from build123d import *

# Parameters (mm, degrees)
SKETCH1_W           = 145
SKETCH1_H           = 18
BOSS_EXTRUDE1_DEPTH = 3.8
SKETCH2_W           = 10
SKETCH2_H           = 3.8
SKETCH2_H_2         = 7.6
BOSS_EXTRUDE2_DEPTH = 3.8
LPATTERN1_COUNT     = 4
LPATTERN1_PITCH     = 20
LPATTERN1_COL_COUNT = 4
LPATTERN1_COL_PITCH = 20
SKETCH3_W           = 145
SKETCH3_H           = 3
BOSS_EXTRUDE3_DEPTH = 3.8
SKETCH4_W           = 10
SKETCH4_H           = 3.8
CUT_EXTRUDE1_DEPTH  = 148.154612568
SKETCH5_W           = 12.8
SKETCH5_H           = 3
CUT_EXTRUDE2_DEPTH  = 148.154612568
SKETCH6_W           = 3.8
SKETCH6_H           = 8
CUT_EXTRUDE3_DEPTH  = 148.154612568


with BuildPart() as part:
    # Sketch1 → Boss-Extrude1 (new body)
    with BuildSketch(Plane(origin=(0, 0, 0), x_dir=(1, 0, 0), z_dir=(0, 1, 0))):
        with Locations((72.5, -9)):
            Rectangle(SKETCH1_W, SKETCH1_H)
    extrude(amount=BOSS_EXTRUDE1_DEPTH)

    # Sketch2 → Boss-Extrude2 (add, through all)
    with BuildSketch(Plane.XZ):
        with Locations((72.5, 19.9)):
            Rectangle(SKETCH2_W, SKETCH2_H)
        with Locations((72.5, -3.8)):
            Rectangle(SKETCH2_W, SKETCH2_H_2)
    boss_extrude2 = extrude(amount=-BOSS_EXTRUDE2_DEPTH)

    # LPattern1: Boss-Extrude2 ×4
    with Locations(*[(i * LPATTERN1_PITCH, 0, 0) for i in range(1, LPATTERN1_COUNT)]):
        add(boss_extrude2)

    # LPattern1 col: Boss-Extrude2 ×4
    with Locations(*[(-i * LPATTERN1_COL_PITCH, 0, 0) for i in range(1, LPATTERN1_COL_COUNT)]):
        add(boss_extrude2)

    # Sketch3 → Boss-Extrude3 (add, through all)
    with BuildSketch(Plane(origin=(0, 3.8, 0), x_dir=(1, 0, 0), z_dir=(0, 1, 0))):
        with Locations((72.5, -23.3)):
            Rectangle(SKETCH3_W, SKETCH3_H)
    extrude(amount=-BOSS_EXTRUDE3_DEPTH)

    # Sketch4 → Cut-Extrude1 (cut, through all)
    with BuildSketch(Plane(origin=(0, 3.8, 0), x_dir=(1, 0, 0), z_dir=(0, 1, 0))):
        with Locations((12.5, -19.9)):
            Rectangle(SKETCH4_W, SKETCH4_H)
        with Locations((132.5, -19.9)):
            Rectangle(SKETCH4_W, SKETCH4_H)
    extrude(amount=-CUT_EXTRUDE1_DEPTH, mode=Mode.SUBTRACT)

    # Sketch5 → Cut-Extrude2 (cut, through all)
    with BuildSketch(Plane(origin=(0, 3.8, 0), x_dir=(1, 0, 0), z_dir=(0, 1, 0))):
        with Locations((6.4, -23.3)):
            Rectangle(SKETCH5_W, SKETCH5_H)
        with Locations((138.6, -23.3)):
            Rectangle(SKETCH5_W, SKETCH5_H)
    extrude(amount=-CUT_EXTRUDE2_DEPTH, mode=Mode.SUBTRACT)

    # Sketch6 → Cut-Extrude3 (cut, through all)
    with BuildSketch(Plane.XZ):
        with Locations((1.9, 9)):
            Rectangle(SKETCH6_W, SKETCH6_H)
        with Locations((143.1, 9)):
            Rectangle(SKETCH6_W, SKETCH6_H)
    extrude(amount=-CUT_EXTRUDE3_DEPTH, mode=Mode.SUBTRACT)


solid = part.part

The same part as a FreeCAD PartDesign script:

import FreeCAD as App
import Part
import Sketcher


def add_polygon(sketch, points):
    """Adds a closed chain of lines whose ends are joined by coincident constraints."""
    first, n = sketch.GeometryCount, len(points)
    for a, b in zip(points, points[1:] + points[:1]):
        sketch.addGeometry(Part.LineSegment(App.Vector(*a, 0), App.Vector(*b, 0)), False)
    for i in range(n):
        sketch.addConstraint(Sketcher.Constraint("Coincident", first + i, 2, first + (i + 1) % n, 1))

doc = App.newDocument("Part")
params = doc.addObject("Spreadsheet::Sheet", "Params")
for row, (alias, value) in enumerate([
    ("sketch1_width", "145 mm"),
    ("sketch1_height", "18 mm"),
    ("pad1_length", "3.8 mm"),
    ("sketch2_width", "10 mm"),
    ("sketch2_height", "3.8 mm"),
    ("sketch2_height2", "7.6 mm"),
    ("linearpattern_pitch", "20 mm"),
    ("linearpattern2_pitch", "20 mm"),
    ("sketch3_width", "145 mm"),
    ("sketch3_height", "3 mm"),
    ("pad3_length", "3.8 mm"),
    ("sketch4_width", "10 mm"),
    ("sketch4_height", "3.8 mm"),
    ("sketch5_height", "3 mm"),
    ("sketch5_width", "12.8 mm"),
    ("sketch6_height", "8 mm"),
    ("sketch6_width", "3.8 mm"),
], start=1):
    params.set(f"A{row}", alias)
    params.set(f"B{row}", "=" + value)
    params.setAlias(f"B{row}", alias)

body = doc.addObject("PartDesign::Body", "Body")

sketch1 = body.newObject("Sketcher::SketchObject", "Sketch")
sketch1.AttachmentSupport = (doc.getObject("XZ_Plane"), [""])
sketch1.MapMode = "FlatFace"
add_polygon(sketch1, [(0, 0), (0, 18), (145, 18), (145, 0)])
sketch1.addConstraint(Sketcher.Constraint("Vertical", 0))
sketch1.addConstraint(Sketcher.Constraint("Horizontal", 1))
sketch1.addConstraint(Sketcher.Constraint("Vertical", 2))
sketch1.addConstraint(Sketcher.Constraint("Horizontal", 3))
sketch1.addConstraint(Sketcher.Constraint("Coincident", 3, 2, -1, 1))
sketch1.addConstraint(Sketcher.Constraint("DistanceX", 1, 1, 1, 2, 145.0))
sketch1.addConstraint(Sketcher.Constraint("DistanceY", 0, 1, 0, 2, 18.0))
sketch1.setExpression("Constraints[9]", "Params.sketch1_width")
sketch1.setExpression("Constraints[10]", "Params.sketch1_height")
pad1 = body.newObject("PartDesign::Pad", "Pad")
pad1.Profile = sketch1
pad1.setExpression("Length", "Params.pad1_length")
pad1.Reversed = True

sketch2 = body.newObject("Sketcher::SketchObject", "Sketch001")
sketch2.AttachmentSupport = (doc.getObject("XZ_Plane"), [""])
sketch2.MapMode = "FlatFace"
add_polygon(sketch2, [(67.5, 21.8), (67.5, 18), (77.5, 18), (77.5, 21.8)])
add_polygon(sketch2, [(67.5, 0), (67.5, -7.6), (77.5, -7.6), (77.5, 0)])
sketch2.addConstraint(Sketcher.Constraint("Vertical", 0))
sketch2.addConstraint(Sketcher.Constraint("Horizontal", 1))
sketch2.addConstraint(Sketcher.Constraint("Vertical", 2))
sketch2.addConstraint(Sketcher.Constraint("Horizontal", 3))
sketch2.addConstraint(Sketcher.Constraint("Vertical", 4))
sketch2.addConstraint(Sketcher.Constraint("Horizontal", 5))
sketch2.addConstraint(Sketcher.Constraint("Vertical", 6))
sketch2.addConstraint(Sketcher.Constraint("Horizontal", 7))
sketch2.addConstraint(Sketcher.Constraint("PointOnObject", 6, 2, -1))
sketch2.addConstraint(Sketcher.Constraint("Vertical", 3, 2, 4, 2))
sketch2.addConstraint(Sketcher.Constraint("Vertical", 2, 2, 5, 2))
sketch2.addConstraint(Sketcher.Constraint("DistanceX", 1, 1, 1, 2, 10.0))
sketch2.addConstraint(Sketcher.Constraint("DistanceY", 0, 2, 0, 1, 3.8))
sketch2.addConstraint(Sketcher.Constraint("DistanceY", 4, 2, 4, 1, 7.6))
sketch2.addConstraint(Sketcher.Constraint("DistanceY", -1, 1, 0, 2, 18.0))
sketch2.addConstraint(Sketcher.Constraint("DistanceX", -1, 1, 0, 2, 67.5))
sketch2.setExpression("Constraints[19]", "Params.sketch2_width")
sketch2.setExpression("Constraints[20]", "Params.sketch2_height")
sketch2.setExpression("Constraints[21]", "Params.sketch2_height2")
pad2 = body.newObject("PartDesign::Pad", "Pad001")
pad2.Profile = sketch2
pad2.Type = "UpToLast"
pad2.Reversed = True
doc.recompute()

linearpattern = body.newObject("PartDesign::LinearPattern", "LinearPattern")
linearpattern.Originals = [pad2]
linearpattern.Direction = (doc.getObject("X_Axis"), [""])
linearpattern.Mode = "offset"
linearpattern.setExpression("Offset", "Params.linearpattern_pitch")
linearpattern.Occurrences = 4
body.Tip = linearpattern
doc.recompute()

linearpattern2 = body.newObject("PartDesign::LinearPattern", "LinearPattern001")
linearpattern2.Originals = [pad2]
linearpattern2.Direction = (doc.getObject("X_Axis"), [""])
linearpattern2.Mode = "offset"
linearpattern2.setExpression("Offset", "Params.linearpattern2_pitch")
linearpattern2.Occurrences = 4
linearpattern2.Reversed = True
body.Tip = linearpattern2

sketch3 = body.newObject("Sketcher::SketchObject", "Sketch002")
sketch3.AttachmentSupport = (doc.getObject("XZ_Plane"), [""])
sketch3.MapMode = "FlatFace"
sketch3.AttachmentOffset = App.Placement(App.Vector(0, 0, -3.8), App.Rotation())
add_polygon(sketch3, [(0, 21.8), (0, 24.8), (145, 24.8), (145, 21.8)])
sketch3.addConstraint(Sketcher.Constraint("Vertical", 0))
sketch3.addConstraint(Sketcher.Constraint("Horizontal", 1))
sketch3.addConstraint(Sketcher.Constraint("Vertical", 2))
sketch3.addConstraint(Sketcher.Constraint("Horizontal", 3))
sketch3.addConstraint(Sketcher.Constraint("PointOnObject", 0, 2, -2))
sketch3.addConstraint(Sketcher.Constraint("DistanceX", 1, 1, 1, 2, 145.0))
sketch3.addConstraint(Sketcher.Constraint("DistanceY", 0, 1, 0, 2, 3.0))
sketch3.addConstraint(Sketcher.Constraint("DistanceY", -1, 1, 0, 2, 24.8))
sketch3.setExpression("Constraints[9]", "Params.sketch3_width")
sketch3.setExpression("Constraints[10]", "Params.sketch3_height")
pad3 = body.newObject("PartDesign::Pad", "Pad002")
pad3.Profile = sketch3
pad3.setExpression("Length", "Params.pad3_length")

sketch4 = body.newObject("Sketcher::SketchObject", "Sketch003")
sketch4.AttachmentSupport = (doc.getObject("XZ_Plane"), [""])
sketch4.MapMode = "FlatFace"
sketch4.AttachmentOffset = App.Placement(App.Vector(0, 0, -3.8), App.Rotation())
add_polygon(sketch4, [(7.5, 18), (7.5, 21.8), (17.5, 21.8), (17.5, 18)])
add_polygon(sketch4, [(127.5, 18), (127.5, 21.8), (137.5, 21.8), (137.5, 18)])
sketch4.addConstraint(Sketcher.Constraint("Vertical", 0))
sketch4.addConstraint(Sketcher.Constraint("Horizontal", 1))
sketch4.addConstraint(Sketcher.Constraint("Vertical", 2))
sketch4.addConstraint(Sketcher.Constraint("Horizontal", 3))
sketch4.addConstraint(Sketcher.Constraint("Vertical", 4))
sketch4.addConstraint(Sketcher.Constraint("Horizontal", 5))
sketch4.addConstraint(Sketcher.Constraint("Vertical", 6))
sketch4.addConstraint(Sketcher.Constraint("Horizontal", 7))
sketch4.addConstraint(Sketcher.Constraint("Horizontal", 1, 2, 4, 2))
sketch4.addConstraint(Sketcher.Constraint("Horizontal", 3, 2, 6, 2))
sketch4.addConstraint(Sketcher.Constraint("Equal", 3, 5))
sketch4.addConstraint(Sketcher.Constraint("DistanceX", 1, 1, 1, 2, 10.0))
sketch4.addConstraint(Sketcher.Constraint("DistanceY", 0, 1, 0, 2, 3.8))
sketch4.addConstraint(Sketcher.Constraint("DistanceY", -1, 1, 2, 2, 18.0))
sketch4.addConstraint(Sketcher.Constraint("DistanceX", 1, 2, 4, 2, 110.0))
sketch4.addConstraint(Sketcher.Constraint("DistanceX", -1, 1, 0, 2, 7.5))
sketch4.setExpression("Constraints[19]", "Params.sketch4_width")
sketch4.setExpression("Constraints[20]", "Params.sketch4_height")
pocket1 = body.newObject("PartDesign::Pocket", "Pocket")
pocket1.Profile = sketch4
pocket1.Type = "ThroughAll"
pocket1.Reversed = True

sketch5 = body.newObject("Sketcher::SketchObject", "Sketch004")
sketch5.AttachmentSupport = (doc.getObject("XZ_Plane"), [""])
sketch5.MapMode = "FlatFace"
sketch5.AttachmentOffset = App.Placement(App.Vector(0, 0, -3.8), App.Rotation())
add_polygon(sketch5, [(0, 21.8), (0, 24.8), (12.8, 24.8), (12.8, 21.8)])
add_polygon(sketch5, [(132.2, 21.8), (132.2, 24.8), (145, 24.8), (145, 21.8)])
sketch5.addConstraint(Sketcher.Constraint("Vertical", 0))
sketch5.addConstraint(Sketcher.Constraint("Horizontal", 1))
sketch5.addConstraint(Sketcher.Constraint("Vertical", 2))
sketch5.addConstraint(Sketcher.Constraint("Horizontal", 3))
sketch5.addConstraint(Sketcher.Constraint("Vertical", 4))
sketch5.addConstraint(Sketcher.Constraint("Horizontal", 5))
sketch5.addConstraint(Sketcher.Constraint("Vertical", 6))
sketch5.addConstraint(Sketcher.Constraint("Horizontal", 7))
sketch5.addConstraint(Sketcher.Constraint("PointOnObject", 0, 2, -2))
sketch5.addConstraint(Sketcher.Constraint("Horizontal", 1, 2, 4, 2))
sketch5.addConstraint(Sketcher.Constraint("Horizontal", 3, 2, 6, 2))
sketch5.addConstraint(Sketcher.Constraint("Equal", 3, 5))
sketch5.addConstraint(Sketcher.Constraint("DistanceY", 0, 1, 0, 2, 3.0))
sketch5.addConstraint(Sketcher.Constraint("DistanceX", 1, 1, 1, 2, 12.8))
sketch5.addConstraint(Sketcher.Constraint("DistanceX", -1, 1, 5, 2, 145.0))
sketch5.addConstraint(Sketcher.Constraint("DistanceY", -1, 1, 0, 2, 24.8))
sketch5.setExpression("Constraints[20]", "Params.sketch5_height")
sketch5.setExpression("Constraints[21]", "Params.sketch5_width")
pocket2 = body.newObject("PartDesign::Pocket", "Pocket001")
pocket2.Profile = sketch5
pocket2.Type = "ThroughAll"
pocket2.Reversed = True

sketch6 = body.newObject("Sketcher::SketchObject", "Sketch005")
sketch6.AttachmentSupport = (doc.getObject("XZ_Plane"), [""])
sketch6.MapMode = "FlatFace"
add_polygon(sketch6, [(0, 13), (0, 5), (3.8, 5), (3.8, 13)])
add_polygon(sketch6, [(141.2, 13), (141.2, 5), (145, 5), (145, 13)])
sketch6.addConstraint(Sketcher.Constraint("Vertical", 0))
sketch6.addConstraint(Sketcher.Constraint("Horizontal", 1))
sketch6.addConstraint(Sketcher.Constraint("Vertical", 2))
sketch6.addConstraint(Sketcher.Constraint("Horizontal", 3))
sketch6.addConstraint(Sketcher.Constraint("Vertical", 4))
sketch6.addConstraint(Sketcher.Constraint("Horizontal", 5))
sketch6.addConstraint(Sketcher.Constraint("Vertical", 6))
sketch6.addConstraint(Sketcher.Constraint("Horizontal", 7))
sketch6.addConstraint(Sketcher.Constraint("PointOnObject", 0, 2, -2))
sketch6.addConstraint(Sketcher.Constraint("Horizontal", 1, 2, 4, 2))
sketch6.addConstraint(Sketcher.Constraint("Horizontal", 3, 2, 6, 2))
sketch6.addConstraint(Sketcher.Constraint("Equal", 3, 5))
sketch6.addConstraint(Sketcher.Constraint("DistanceY", 0, 2, 0, 1, 8.0))
sketch6.addConstraint(Sketcher.Constraint("DistanceX", 1, 1, 1, 2, 3.8))
sketch6.addConstraint(Sketcher.Constraint("DistanceY", -1, 1, 0, 2, 5.0))
sketch6.addConstraint(Sketcher.Constraint("DistanceX", -1, 1, 5, 2, 145.0))
sketch6.setExpression("Constraints[20]", "Params.sketch6_height")
sketch6.setExpression("Constraints[21]", "Params.sketch6_width")
pocket3 = body.newObject("PartDesign::Pocket", "Pocket002")
pocket3.Profile = sketch6
pocket3.Type = "ThroughAll"

doc.recompute()
